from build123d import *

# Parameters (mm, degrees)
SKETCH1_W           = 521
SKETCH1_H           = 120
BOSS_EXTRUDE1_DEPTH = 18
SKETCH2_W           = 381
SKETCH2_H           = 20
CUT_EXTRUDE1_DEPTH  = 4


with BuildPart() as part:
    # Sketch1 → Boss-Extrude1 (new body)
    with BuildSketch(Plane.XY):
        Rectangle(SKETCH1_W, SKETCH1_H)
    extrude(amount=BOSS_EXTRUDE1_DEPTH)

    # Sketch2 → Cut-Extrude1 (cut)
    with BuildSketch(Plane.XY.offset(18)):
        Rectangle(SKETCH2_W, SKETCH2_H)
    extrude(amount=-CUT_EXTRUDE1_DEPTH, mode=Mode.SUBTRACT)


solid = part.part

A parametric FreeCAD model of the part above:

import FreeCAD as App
import Part
import Sketcher
from FreeCAD import Vector

doc = App.newDocument("Part")
body = doc.addObject("PartDesign::Body", "Body")

# Sketch on XY plane
sketch1 = doc.addObject("Sketcher::SketchObject", "Sketch")
body.addObject(sketch1)
sketch1.AttachmentSupport = (doc.XY_Plane, [""])
sketch1.MapMode = "FlatFace"
sketch1.addGeometry([
    Part.LineSegment(Vector(-260, 60, 0), Vector(-260, -60, 0)),
    Part.LineSegment(Vector(-260, -60, 0), Vector(260, -60, 0)),
    Part.LineSegment(Vector(260, -60, 0), Vector(260, 60, 0)),
    Part.LineSegment(Vector(260, 60, 0), Vector(-260, 60, 0)),
], False)
sketch1.addConstraint([
    Sketcher.Constraint("Coincident", 0, 2, 1, 1),
    Sketcher.Constraint("Coincident", 1, 2, 2, 1),
    Sketcher.Constraint("Coincident", 2, 2, 3, 1),
    Sketcher.Constraint("Coincident", 3, 2, 0, 1),
    Sketcher.Constraint("Vertical", 0),
    Sketcher.Constraint("Horizontal", 1),
    Sketcher.Constraint("Vertical", 2),
    Sketcher.Constraint("Horizontal", 3),
    Sketcher.Constraint("Symmetric", 0, 2, 2, 2, -1, 1),
    Sketcher.Constraint("DistanceX", 1, 1, 1, 2, 521.0),
    Sketcher.Constraint("DistanceY", 0, 2, 0, 1, 120.0),
])
pad1 = doc.addObject("PartDesign::Pad", "Pad")
body.addObject(pad1)
pad1.Profile = sketch1
pad1.Length = 18

# Sketch on XY plane
sketch2 = doc.addObject("Sketcher::SketchObject", "Sketch001")
body.addObject(sketch2)
sketch2.AttachmentSupport = (doc.XY_Plane, [""])
sketch2.MapMode = "FlatFace"
sketch2.AttachmentOffset = App.Placement(Vector(0, 0, 18), App.Rotation())
sketch2.addGeometry([
    Part.LineSegment(Vector(-190, 10, 0), Vector(-190, -10, 0)),
    Part.LineSegment(Vector(-190, -10, 0), Vector(190, -10, 0)),
    Part.LineSegment(Vector(190, -10, 0), Vector(190, 10, 0)),
    Part.LineSegment(Vector(190, 10, 0), Vector(-190, 10, 0)),
], False)
sketch2.addConstraint([
    Sketcher.Constraint("Coincident", 0, 2, 1, 1),
    Sketcher.Constraint("Coincident", 1, 2, 2, 1),
    Sketcher.Constraint("Coincident", 2, 2, 3, 1),
    Sketcher.Constraint("Coincident", 3, 2, 0, 1),
    Sketcher.Constraint("Vertical", 0),
    Sketcher.Constraint("Horizontal", 1),
    Sketcher.Constraint("Vertical", 2),
    Sketcher.Constraint("Horizontal", 3),
    Sketcher.Constraint("Symmetric", 0, 2, 2, 2, -1, 1),
    Sketcher.Constraint("DistanceX", 1, 1, 1, 2, 381.0),
    Sketcher.Constraint("DistanceY", 0, 2, 0, 1, 20.0),
])
pocket1 = doc.addObject("PartDesign::Pocket", "Pocket")
body.addObject(pocket1)
pocket1.Profile = sketch2
pocket1.Length = 4

doc.recompute()
